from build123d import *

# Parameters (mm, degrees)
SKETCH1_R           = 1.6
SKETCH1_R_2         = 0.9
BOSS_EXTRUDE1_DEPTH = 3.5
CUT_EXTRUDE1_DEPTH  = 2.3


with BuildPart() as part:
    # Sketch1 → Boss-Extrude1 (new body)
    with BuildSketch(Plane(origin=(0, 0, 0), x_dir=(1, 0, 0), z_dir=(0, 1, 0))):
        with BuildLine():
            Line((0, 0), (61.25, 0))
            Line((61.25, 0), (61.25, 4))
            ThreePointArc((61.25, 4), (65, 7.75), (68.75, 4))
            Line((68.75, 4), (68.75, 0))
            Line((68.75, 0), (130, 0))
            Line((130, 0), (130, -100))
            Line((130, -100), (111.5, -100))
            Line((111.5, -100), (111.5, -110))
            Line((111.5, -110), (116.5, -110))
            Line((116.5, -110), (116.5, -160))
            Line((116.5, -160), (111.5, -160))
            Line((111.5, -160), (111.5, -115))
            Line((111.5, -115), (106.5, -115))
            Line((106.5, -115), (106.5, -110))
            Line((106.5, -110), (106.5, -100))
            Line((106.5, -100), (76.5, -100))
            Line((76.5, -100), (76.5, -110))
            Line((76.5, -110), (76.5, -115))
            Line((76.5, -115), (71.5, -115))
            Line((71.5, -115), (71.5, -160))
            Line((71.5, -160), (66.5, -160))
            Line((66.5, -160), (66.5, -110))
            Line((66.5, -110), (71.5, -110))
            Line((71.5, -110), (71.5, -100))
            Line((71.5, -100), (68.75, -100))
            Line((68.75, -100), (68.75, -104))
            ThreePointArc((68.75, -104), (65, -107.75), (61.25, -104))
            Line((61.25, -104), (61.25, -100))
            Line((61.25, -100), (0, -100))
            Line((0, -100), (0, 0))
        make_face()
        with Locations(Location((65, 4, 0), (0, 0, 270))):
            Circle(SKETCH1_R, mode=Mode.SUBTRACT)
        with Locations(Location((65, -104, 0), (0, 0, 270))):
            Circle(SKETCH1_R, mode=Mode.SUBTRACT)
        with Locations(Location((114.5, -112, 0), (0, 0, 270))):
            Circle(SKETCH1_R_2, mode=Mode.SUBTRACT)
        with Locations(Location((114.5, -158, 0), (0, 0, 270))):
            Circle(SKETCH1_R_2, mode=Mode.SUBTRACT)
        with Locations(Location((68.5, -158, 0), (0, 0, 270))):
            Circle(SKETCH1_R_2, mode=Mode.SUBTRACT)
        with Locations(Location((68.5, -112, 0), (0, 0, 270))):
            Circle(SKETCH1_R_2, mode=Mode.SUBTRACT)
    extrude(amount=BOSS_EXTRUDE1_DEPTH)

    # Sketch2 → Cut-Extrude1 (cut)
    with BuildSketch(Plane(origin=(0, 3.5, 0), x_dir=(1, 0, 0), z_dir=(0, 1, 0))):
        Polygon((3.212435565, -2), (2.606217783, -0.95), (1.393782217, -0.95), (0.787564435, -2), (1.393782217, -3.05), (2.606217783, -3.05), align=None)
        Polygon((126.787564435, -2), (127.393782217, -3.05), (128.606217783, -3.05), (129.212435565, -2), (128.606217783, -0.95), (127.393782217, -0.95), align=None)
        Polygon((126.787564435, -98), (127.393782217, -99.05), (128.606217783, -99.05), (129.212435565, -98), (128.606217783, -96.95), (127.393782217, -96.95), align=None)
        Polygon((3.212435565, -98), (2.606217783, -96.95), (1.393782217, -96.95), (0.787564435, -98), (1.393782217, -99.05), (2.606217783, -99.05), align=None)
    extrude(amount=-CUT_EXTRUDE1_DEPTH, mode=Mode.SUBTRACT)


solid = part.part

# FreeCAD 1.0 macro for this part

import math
import FreeCAD as App
import Part
import Sketcher
Q = App.Units.Quantity


def add_polygon(sketch, points):
    """Adds a closed chain of lines whose ends are joined by coincident constraints."""
    first, n = sketch.GeometryCount, len(points)
    for a, b in zip(points, points[1:] + points[:1]):
        sketch.addGeometry(Part.LineSegment(App.Vector(*a, 0), App.Vector(*b, 0)), False)
    for i in range(n):
        sketch.addConstraint(Sketcher.Constraint("Coincident", first + i, 2, first + (i + 1) % n, 1))

doc = App.newDocument("Part")
params = doc.addObject("Spreadsheet::Sheet", "Params")
for row, (alias, value) in enumerate([
    ("sketch1_diameter", "1.8 mm"),
    ("sketch1_diameter2", "3.2 mm"),
    ("sketch1_width", "5 mm"),
    ("sketch1_width2", "30 mm"),
    ("sketch1_height", "100 mm"),
    ("pad1_length", "3.5 mm"),
    ("pocket1_length", "2.3 mm"),
], start=1):
    params.set(f"A{row}", alias)
    params.set(f"B{row}", "=" + value)
    params.setAlias(f"B{row}", alias)

body = doc.addObject("PartDesign::Body", "Body")

sketch1 = doc.addObject("Sketcher::SketchObject", "Sketch")
body.addObject(sketch1)
sketch1.AttachmentSupport = (doc.XZ_Plane, [""])
sketch1.MapMode = "FlatFace"
sketch1.addGeometry(Part.LineSegment(App.Vector(61.2, 0, 0), App.Vector(0, 0, 0)), False)
sketch1.addGeometry(Part.LineSegment(App.Vector(0, 0, 0), App.Vector(0, 100, 0)), False)
sketch1.addGeometry(Part.LineSegment(App.Vector(0, 100, 0), App.Vector(61.2, 100, 0)), False)
sketch1.addGeometry(Part.LineSegment(App.Vector(61.2, 100, 0), App.Vector(61.2, 104, 0)), False)
sketch1.addGeometry(Part.ArcOfCircle(Part.Circle(App.Vector(65, 104, 0), App.Vector(0, 0, 1), 3.8), math.radians(0), math.radians(180)), False)
sketch1.addGeometry(Part.LineSegment(App.Vector(68.8, 104, 0), App.Vector(68.8, 100, 0)), False)
sketch1.addGeometry(Part.LineSegment(App.Vector(68.8, 100, 0), App.Vector(71.5, 100, 0)), False)
sketch1.addGeometry(Part.LineSegment(App.Vector(71.5, 100, 0), App.Vector(71.5, 110, 0)), False)
sketch1.addGeometry(Part.LineSegment(App.Vector(71.5, 110, 0), App.Vector(66.5, 110, 0)), False)
sketch1.addGeometry(Part.LineSegment(App.Vector(66.5, 110, 0), App.Vector(66.5, 160, 0)), False)
sketch1.addGeometry(Part.LineSegment(App.Vector(66.5, 160, 0), App.Vector(71.5, 160, 0)), False)
sketch1.addGeometry(Part.LineSegment(App.Vector(71.5, 160, 0), App.Vector(71.5, 115, 0)), False)
sketch1.addGeometry(Part.LineSegment(App.Vector(71.5, 115, 0), App.Vector(76.5, 115, 0)), False)
sketch1.addGeometry(Part.LineSegment(App.Vector(76.5, 115, 0), App.Vector(76.5, 100, 0)), False)
sketch1.addGeometry(Part.LineSegment(App.Vector(76.5, 100, 0), App.Vector(106.5, 100, 0)), False)
sketch1.addGeometry(Part.LineSegment(App.Vector(106.5, 100, 0), App.Vector(106.5, 115, 0)), False)
sketch1.addGeometry(Part.LineSegment(App.Vector(106.5, 115, 0), App.Vector(111.5, 115, 0)), False)
sketch1.addGeometry(Part.LineSegment(App.Vector(111.5, 115, 0), App.Vector(111.5, 160, 0)), False)
sketch1.addGeometry(Part.LineSegment(App.Vector(111.5, 160, 0), App.Vector(116.5, 160, 0)), False)
sketch1.addGeometry(Part.LineSegment(App.Vector(116.5, 160, 0), App.Vector(116.5, 110, 0)), False)
sketch1.addGeometry(Part.LineSegment(App.Vector(116.5, 110, 0), App.Vector(111.5, 110, 0)), False)
sketch1.addGeometry(Part.LineSegment(App.Vector(111.5, 110, 0), App.Vector(111.5, 100, 0)), False)
sketch1.addGeometry(Part.LineSegment(App.Vector(111.5, 100, 0), App.Vector(130, 100, 0)), False)
sketch1.addGeometry(Part.LineSegment(App.Vector(130, 100, 0), App.Vector(130, 0, 0)), False)
sketch1.addGeometry(Part.LineSegment(App.Vector(130, 0, 0), App.Vector(68.8, 0, 0)), False)
sketch1.addGeometry(Part.LineSegment(App.Vector(68.8, 0, 0), App.Vector(68.8, -4, 0)), False)
sketch1.addGeometry(Part.ArcOfCircle(Part.Circle(App.Vector(65, -4, 0), App.Vector(0, 0, 1), 3.8), math.radians(180), math.radians(360)), False)
sketch1.addGeometry(Part.LineSegment(App.Vector(61.2, -4, 0), App.Vector(61.2, 0, 0)), False)
sketch1.addGeometry(Part.Circle(App.Vector(114.5, 158, 0), App.Vector(0, 0, 1), 0.9), False)
sketch1.addGeometry(Part.Circle(App.Vector(114.5, 112, 0), App.Vector(0, 0, 1), 0.9), False)
sketch1.addGeometry(Part.Circle(App.Vector(68.5, 158, 0), App.Vector(0, 0, 1), 0.9), False)
sketch1.addGeometry(Part.Circle(App.Vector(68.5, 112, 0), App.Vector(0, 0, 1), 0.9), False)
sketch1.addGeometry(Part.Circle(App.Vector(65, 104, 0), App.Vector(0, 0, 1), 1.6), False)
sketch1.addGeometry(Part.Circle(App.Vector(65, -4, 0), App.Vector(0, 0, 1), 1.6), False)
sketch1.addConstraint(Sketcher.Constraint("Coincident", 0, 2, 1, 1))
sketch1.addConstraint(Sketcher.Constraint("Coincident", 1, 2, 2, 1))
sketch1.addConstraint(Sketcher.Constraint("Coincident", 2, 2, 3, 1))
sketch1.addConstraint(Sketcher.Constraint("Tangent", 3, 2, 4, 2))
sketch1.addConstraint(Sketcher.Constraint("Tangent", 4, 1, 5, 1))
sketch1.addConstraint(Sketcher.Constraint("Coincident", 5, 2, 6, 1))
sketch1.addConstraint(Sketcher.Constraint("Coincident", 6, 2, 7, 1))
sketch1.addConstraint(Sketcher.Constraint("Coincident", 7, 2, 8, 1))
sketch1.addConstraint(Sketcher.Constraint("Coincident", 8, 2, 9, 1))
sketch1.addConstraint(Sketcher.Constraint("Coincident", 9, 2, 10, 1))
sketch1.addConstraint(Sketcher.Constraint("Coincident", 10, 2, 11, 1))
sketch1.addConstraint(Sketcher.Constraint("Coincident", 11, 2, 12, 1))
sketch1.addConstraint(Sketcher.Constraint("Coincident", 12, 2, 13, 1))
sketch1.addConstraint(Sketcher.Constraint("Coincident", 13, 2, 14, 1))
sketch1.addConstraint(Sketcher.Constraint("Coincident", 14, 2, 15, 1))
sketch1.addConstraint(Sketcher.Constraint("Coincident", 15, 2, 16, 1))
sketch1.addConstraint(Sketcher.Constraint("Coincident", 16, 2, 17, 1))
sketch1.addConstraint(Sketcher.Constraint("Coincident", 17, 2, 18, 1))
sketch1.addConstraint(Sketcher.Constraint("Coincident", 18, 2, 19, 1))
sketch1.addConstraint(Sketcher.Constraint("Coincident", 19, 2, 20, 1))
sketch1.addConstraint(Sketcher.Constraint("Coincident", 20, 2, 21, 1))
sketch1.addConstraint(Sketcher.Constraint("Coincident", 21, 2, 22, 1))
sketch1.addConstraint(Sketcher.Constraint("Coincident", 22, 2, 23, 1))
sketch1.addConstraint(Sketcher.Constraint("Coincident", 23, 2, 24, 1))
sketch1.addConstraint(Sketcher.Constraint("Coincident", 24, 2, 25, 1))
sketch1.addConstraint(Sketcher.Constraint("Tangent", 25, 2, 26, 2))
sketch1.addConstraint(Sketcher.Constraint("Tangent", 26, 1, 27, 1))
sketch1.addConstraint(Sketcher.Constraint("Coincident", 27, 2, 0, 1))
sketch1.addConstraint(Sketcher.Constraint("Horizontal", 0))
sketch1.addConstraint(Sketcher.Constraint("Vertical", 1))
sketch1.addConstraint(Sketcher.Constraint("Horizontal", 2))
sketch1.addConstraint(Sketcher.Constraint("Vertical", 3))
sketch1.addConstraint(Sketcher.Constraint("Vertical", 5))
sketch1.addConstraint(Sketcher.Constraint("Horizontal", 6))
sketch1.addConstraint(Sketcher.Constraint("Vertical", 7))
sketch1.addConstraint(Sketcher.Constraint("Horizontal", 8))
sketch1.addConstraint(Sketcher.Constraint("Vertical", 9))
sketch1.addConstraint(Sketcher.Constraint("Horizontal", 10))
sketch1.addConstraint(Sketcher.Constraint("Vertical", 11))
sketch1.addConstraint(Sketcher.Constraint("Horizontal", 12))
sketch1.addConstraint(Sketcher.Constraint("Vertical", 13))
sketch1.addConstraint(Sketcher.Constraint("Horizontal", 14))
sketch1.addConstraint(Sketcher.Constraint("Vertical", 15))
sketch1.addConstraint(Sketcher.Constraint("Horizontal", 16))
sketch1.addConstraint(Sketcher.Constraint("Vertical", 17))
sketch1.addConstraint(Sketcher.Constraint("Horizontal", 18))
sketch1.addConstraint(Sketcher.Constraint("Vertical", 19))
sketch1.addConstraint(Sketcher.Constraint("Horizontal", 20))
sketch1.addConstraint(Sketcher.Constraint("Vertical", 21))
sketch1.addConstraint(Sketcher.Constraint("Horizontal", 22))
sketch1.addConstraint(Sketcher.Constraint("Vertical", 23))
sketch1.addConstraint(Sketcher.Constraint("Horizontal", 24))
sketch1.addConstraint(Sketcher.Constraint("Vertical", 25))
sketch1.addConstraint(Sketcher.Constraint("Vertical", 27))
sketch1.addConstraint(Sketcher.Constraint("Coincident", 0, 2, -1, 1))
sketch1.addConstraint(Sketcher.Constraint("Coincident", 32, 3, 4, 3))
sketch1.addConstraint(Sketcher.Constraint("Coincident", 33, 3, 26, 3))
sketch1.addConstraint(Sketcher.Constraint("Equal", 4, 26))
sketch1.addConstraint(Sketcher.Constraint("Equal", 28, 29))
sketch1.addConstraint(Sketcher.Constraint("Equal", 29, 30))
sketch1.addConstraint(Sketcher.Constraint("Equal", 30, 31))
sketch1.addConstraint(Sketcher.Constraint("Equal", 32, 33))
sketch1.addConstraint(Sketcher.Constraint("PointOnObject", 23, 2, -1))
sketch1.addConstraint(Sketcher.Constraint("Horizontal", 28, 3, 30, 3))
sketch1.addConstraint(Sketcher.Constraint("Horizontal", 29, 3, 31, 3))
sketch1.addConstraint(Sketcher.Constraint("Horizontal", 2, 2, 5, 2))
sketch1.addConstraint(Sketcher.Constraint("Horizontal", 6, 2, 13, 2))
sketch1.addConstraint(Sketcher.Constraint("Horizontal", 12, 2, 15, 2))
sketch1.addConstraint(Sketcher.Constraint("Horizontal", 10, 2, 17, 2))
sketch1.addConstraint(Sketcher.Constraint("Horizontal", 8, 2, 19, 2))
sketch1.addConstraint(Sketcher.Constraint("Horizontal", 14, 2, 21, 2))
sketch1.addConstraint(Sketcher.Constraint("Vertical", 4, 3, 26, 3))
sketch1.addConstraint(Sketcher.Constraint("Vertical", 28, 3, 29, 3))
sketch1.addConstraint(Sketcher.Constraint("Vertical", 30, 3, 31, 3))
sketch1.addConstraint(Sketcher.Constraint("Vertical", 7, 2, 10, 2))
sketch1.addConstraint(Sketcher.Constraint("Vertical", 17, 2, 20, 2))
sketch1.addConstraint(Sketcher.Constraint("Equal", 10, 12))
sketch1.addConstraint(Sketcher.Constraint("Equal", 12, 16))
sketch1.addConstraint(Sketcher.Constraint("Equal", 16, 18))
sketch1.addConstraint(Sketcher.Constraint("Equal", 2, 24))
sketch1.addConstraint(Sketcher.Constraint("Equal", 5, 25))
sketch1.addConstraint(Sketcher.Constraint("Diameter", 28, Q("1.8 mm")))
sketch1.addConstraint(Sketcher.Constraint("Diameter", 32, Q("3.2 mm")))
sketch1.addConstraint(Sketcher.Constraint("DistanceX", 8, 2, 8, 1, Q("5 mm")))
sketch1.addConstraint(Sketcher.Constraint("DistanceX", 14, 1, 14, 2, Q("30 mm")))
sketch1.addConstraint(Sketcher.Constraint("DistanceY", 1, 1, 1, 2, Q("100 mm")))
sketch1.addConstraint(Sketcher.Constraint("DistanceY", 3, 1, 3, 2, Q("4 mm")))
sketch1.addConstraint(Sketcher.Constraint("DistanceY", 7, 1, 7, 2, Q("10 mm")))
sketch1.addConstraint(Sketcher.Constraint("DistanceY", 9, 1, 9, 2, Q("50 mm")))
sketch1.addConstraint(Sketcher.Constraint("DistanceY", 11, 2, 11, 1, Q("45 mm")))
sketch1.addConstraint(Sketcher.Constraint("Radius", 4, Q("3.75 mm")))
sketch1.addConstraint(Sketcher.Constraint("DistanceX", 22, 1, 22, 2, Q("18.5 mm")))
sketch1.addConstraint(Sketcher.Constraint("DistanceX", -1, 1, 4, 3, Q("65 mm")))
sketch1.addConstraint(Sketcher.Constraint("DistanceY", -1, 1, 28, 3, Q("158 mm")))
sketch1.addConstraint(Sketcher.Constraint("DistanceY", -1, 1, 29, 3, Q("112 mm")))
sketch1.addConstraint(Sketcher.Constraint("DistanceX", 30, 3, 28, 3, Q("46 mm")))
sketch1.addConstraint(Sketcher.Constraint("DistanceX", 31, 3, 7, 2, Q("3 mm")))
sketch1.setExpression("Constraints[81]", "Params.sketch1_diameter")
sketch1.setExpression("Constraints[82]", "Params.sketch1_diameter2")
sketch1.setExpression("Constraints[83]", "Params.sketch1_width")
sketch1.setExpression("Constraints[84]", "Params.sketch1_width2")
sketch1.setExpression("Constraints[85]", "Params.sketch1_height")
pad1 = doc.addObject("PartDesign::Pad", "Pad")
body.addObject(pad1)
pad1.Profile = sketch1
pad1.setExpression("Length", "Params.pad1_length")
pad1.Reversed = True

sketch2 = doc.addObject("Sketcher::SketchObject", "Sketch001")
body.addObject(sketch2)
sketch2.AttachmentSupport = (doc.XZ_Plane, [""])
sketch2.MapMode = "FlatFace"
sketch2.AttachmentOffset = App.Placement(App.Vector(0, 0, -3.5), App.Rotation())
add_polygon(sketch2, [(3.2, 2), (2.6, 0.9), (1.4, 0.9), (0.8, 2), (1.4, 3), (2.6, 3)])
add_polygon(sketch2, [(126.8, 2), (127.4, 3), (128.6, 3), (129.2, 2), (128.6, 0.9), (127.4, 0.9)])
add_polygon(sketch2, [(126.8, 98), (127.4, 99), (128.6, 99), (129.2, 98), (128.6, 97), (127.4, 97)])
add_polygon(sketch2, [(3.2, 98), (2.6, 97), (1.4, 97), (0.8, 98), (1.4, 99), (2.6, 99)])
sketch2.addConstraint(Sketcher.Constraint("Horizontal", 1))
sketch2.addConstraint(Sketcher.Constraint("Horizontal", 4))
sketch2.addConstraint(Sketcher.Constraint("Horizontal", 7))
sketch2.addConstraint(Sketcher.Constraint("Horizontal", 10))
sketch2.addConstraint(Sketcher.Constraint("Horizontal", 13))
sketch2.addConstraint(Sketcher.Constraint("Horizontal", 16))
sketch2.addConstraint(Sketcher.Constraint("Horizontal", 19))
sketch2.addConstraint(Sketcher.Constraint("Horizontal", 22))
sketch2.addConstraint(Sketcher.Constraint("Parallel", 0, 3))
sketch2.addConstraint(Sketcher.Constraint("Parallel", 2, 5))
sketch2.addConstraint(Sketcher.Constraint("Parallel", 3, 6))
sketch2.addConstraint(Sketcher.Constraint("Parallel", 5, 8))
sketch2.addConstraint(Sketcher.Constraint("Parallel", 6, 9))
sketch2.addConstraint(Sketcher.Constraint("Parallel", 8, 11))
sketch2.addConstraint(Sketcher.Constraint("Parallel", 9, 12))
sketch2.addConstraint(Sketcher.Constraint("Parallel", 11, 14))
sketch2.addConstraint(Sketcher.Constraint("Parallel", 12, 15))
sketch2.addConstraint(Sketcher.Constraint("Parallel", 14, 17))
sketch2.addConstraint(Sketcher.Constraint("Parallel", 15, 18))
sketch2.addConstraint(Sketcher.Constraint("Parallel", 17, 20))
sketch2.addConstraint(Sketcher.Constraint("Parallel", 18, 21))
sketch2.addConstraint(Sketcher.Constraint("Parallel", 20, 23))
sketch2.addConstraint(Sketcher.Constraint("Horizontal", 2, 2, 5, 2))
sketch2.addConstraint(Sketcher.Constraint("Horizontal", 4, 2, 6, 2))
sketch2.addConstraint(Sketcher.Constraint("Horizontal", 5, 2, 8, 2))
sketch2.addConstraint(Sketcher.Constraint("Horizontal", 1, 2, 9, 2))
sketch2.addConstraint(Sketcher.Constraint("Horizontal", 8, 2, 11, 2))
sketch2.addConstraint(Sketcher.Constraint("Horizontal", 14, 2, 17, 2))
sketch2.addConstraint(Sketcher.Constraint("Horizontal", 16, 2, 18, 2))
sketch2.addConstraint(Sketcher.Constraint("Horizontal", 17, 2, 20, 2))
sketch2.addConstraint(Sketcher.Constraint("Horizontal", 13, 2, 21, 2))
sketch2.addConstraint(Sketcher.Constraint("Horizontal", 20, 2, 23, 2))
sketch2.addConstraint(Sketcher.Constraint("Vertical", 1, 2, 3, 2))
sketch2.addConstraint(Sketcher.Constraint("Vertical", 0, 2, 4, 2))
sketch2.addConstraint(Sketcher.Constraint("Vertical", 10, 2, 12, 2))
sketch2.addConstraint(Sketcher.Constraint("Vertical", 9, 2, 13, 2))
sketch2.addConstraint(Sketcher.Constraint("Vertical", 8, 2, 14, 2))
sketch2.addConstraint(Sketcher.Constraint("Vertical", 13, 2, 15, 2))
sketch2.addConstraint(Sketcher.Constraint("Vertical", 4, 2, 18, 2))
sketch2.addConstraint(Sketcher.Constraint("Vertical", 3, 2, 19, 2))
sketch2.addConstraint(Sketcher.Constraint("Equal", 4, 7))
sketch2.addConstraint(Sketcher.Constraint("Angle", 0, Q("-120 deg")))
sketch2.addConstraint(Sketcher.Constraint("DistanceY", -1, 1, 2, 2, Q("2 mm")))
sketch2.addConstraint(Sketcher.Constraint("DistanceY", -1, 1, 14, 2, Q("98 mm")))
sketch2.addConstraint(Sketcher.Constraint("DistanceX", 3, 2, 6, 2, Q("126 mm")))
sketch2.addConstraint(Sketcher.Constraint("DistanceY", 1, 2, 3, 2, Q("2.1 mm")))
sketch2.addConstraint(Sketcher.Constraint("DistanceX", 1, 2, 1, 1, Q("1.212436 mm")))
sketch2.addConstraint(Sketcher.Constraint("DistanceX", -1, 1, 0, 2, Q("2.606218 mm")))
pocket1 = doc.addObject("PartDesign::Pocket", "Pocket")
body.addObject(pocket1)
pocket1.Profile = sketch2
pocket1.setExpression("Length", "Params.pocket1_length")
pocket1.Reversed = True

doc.recompute()
